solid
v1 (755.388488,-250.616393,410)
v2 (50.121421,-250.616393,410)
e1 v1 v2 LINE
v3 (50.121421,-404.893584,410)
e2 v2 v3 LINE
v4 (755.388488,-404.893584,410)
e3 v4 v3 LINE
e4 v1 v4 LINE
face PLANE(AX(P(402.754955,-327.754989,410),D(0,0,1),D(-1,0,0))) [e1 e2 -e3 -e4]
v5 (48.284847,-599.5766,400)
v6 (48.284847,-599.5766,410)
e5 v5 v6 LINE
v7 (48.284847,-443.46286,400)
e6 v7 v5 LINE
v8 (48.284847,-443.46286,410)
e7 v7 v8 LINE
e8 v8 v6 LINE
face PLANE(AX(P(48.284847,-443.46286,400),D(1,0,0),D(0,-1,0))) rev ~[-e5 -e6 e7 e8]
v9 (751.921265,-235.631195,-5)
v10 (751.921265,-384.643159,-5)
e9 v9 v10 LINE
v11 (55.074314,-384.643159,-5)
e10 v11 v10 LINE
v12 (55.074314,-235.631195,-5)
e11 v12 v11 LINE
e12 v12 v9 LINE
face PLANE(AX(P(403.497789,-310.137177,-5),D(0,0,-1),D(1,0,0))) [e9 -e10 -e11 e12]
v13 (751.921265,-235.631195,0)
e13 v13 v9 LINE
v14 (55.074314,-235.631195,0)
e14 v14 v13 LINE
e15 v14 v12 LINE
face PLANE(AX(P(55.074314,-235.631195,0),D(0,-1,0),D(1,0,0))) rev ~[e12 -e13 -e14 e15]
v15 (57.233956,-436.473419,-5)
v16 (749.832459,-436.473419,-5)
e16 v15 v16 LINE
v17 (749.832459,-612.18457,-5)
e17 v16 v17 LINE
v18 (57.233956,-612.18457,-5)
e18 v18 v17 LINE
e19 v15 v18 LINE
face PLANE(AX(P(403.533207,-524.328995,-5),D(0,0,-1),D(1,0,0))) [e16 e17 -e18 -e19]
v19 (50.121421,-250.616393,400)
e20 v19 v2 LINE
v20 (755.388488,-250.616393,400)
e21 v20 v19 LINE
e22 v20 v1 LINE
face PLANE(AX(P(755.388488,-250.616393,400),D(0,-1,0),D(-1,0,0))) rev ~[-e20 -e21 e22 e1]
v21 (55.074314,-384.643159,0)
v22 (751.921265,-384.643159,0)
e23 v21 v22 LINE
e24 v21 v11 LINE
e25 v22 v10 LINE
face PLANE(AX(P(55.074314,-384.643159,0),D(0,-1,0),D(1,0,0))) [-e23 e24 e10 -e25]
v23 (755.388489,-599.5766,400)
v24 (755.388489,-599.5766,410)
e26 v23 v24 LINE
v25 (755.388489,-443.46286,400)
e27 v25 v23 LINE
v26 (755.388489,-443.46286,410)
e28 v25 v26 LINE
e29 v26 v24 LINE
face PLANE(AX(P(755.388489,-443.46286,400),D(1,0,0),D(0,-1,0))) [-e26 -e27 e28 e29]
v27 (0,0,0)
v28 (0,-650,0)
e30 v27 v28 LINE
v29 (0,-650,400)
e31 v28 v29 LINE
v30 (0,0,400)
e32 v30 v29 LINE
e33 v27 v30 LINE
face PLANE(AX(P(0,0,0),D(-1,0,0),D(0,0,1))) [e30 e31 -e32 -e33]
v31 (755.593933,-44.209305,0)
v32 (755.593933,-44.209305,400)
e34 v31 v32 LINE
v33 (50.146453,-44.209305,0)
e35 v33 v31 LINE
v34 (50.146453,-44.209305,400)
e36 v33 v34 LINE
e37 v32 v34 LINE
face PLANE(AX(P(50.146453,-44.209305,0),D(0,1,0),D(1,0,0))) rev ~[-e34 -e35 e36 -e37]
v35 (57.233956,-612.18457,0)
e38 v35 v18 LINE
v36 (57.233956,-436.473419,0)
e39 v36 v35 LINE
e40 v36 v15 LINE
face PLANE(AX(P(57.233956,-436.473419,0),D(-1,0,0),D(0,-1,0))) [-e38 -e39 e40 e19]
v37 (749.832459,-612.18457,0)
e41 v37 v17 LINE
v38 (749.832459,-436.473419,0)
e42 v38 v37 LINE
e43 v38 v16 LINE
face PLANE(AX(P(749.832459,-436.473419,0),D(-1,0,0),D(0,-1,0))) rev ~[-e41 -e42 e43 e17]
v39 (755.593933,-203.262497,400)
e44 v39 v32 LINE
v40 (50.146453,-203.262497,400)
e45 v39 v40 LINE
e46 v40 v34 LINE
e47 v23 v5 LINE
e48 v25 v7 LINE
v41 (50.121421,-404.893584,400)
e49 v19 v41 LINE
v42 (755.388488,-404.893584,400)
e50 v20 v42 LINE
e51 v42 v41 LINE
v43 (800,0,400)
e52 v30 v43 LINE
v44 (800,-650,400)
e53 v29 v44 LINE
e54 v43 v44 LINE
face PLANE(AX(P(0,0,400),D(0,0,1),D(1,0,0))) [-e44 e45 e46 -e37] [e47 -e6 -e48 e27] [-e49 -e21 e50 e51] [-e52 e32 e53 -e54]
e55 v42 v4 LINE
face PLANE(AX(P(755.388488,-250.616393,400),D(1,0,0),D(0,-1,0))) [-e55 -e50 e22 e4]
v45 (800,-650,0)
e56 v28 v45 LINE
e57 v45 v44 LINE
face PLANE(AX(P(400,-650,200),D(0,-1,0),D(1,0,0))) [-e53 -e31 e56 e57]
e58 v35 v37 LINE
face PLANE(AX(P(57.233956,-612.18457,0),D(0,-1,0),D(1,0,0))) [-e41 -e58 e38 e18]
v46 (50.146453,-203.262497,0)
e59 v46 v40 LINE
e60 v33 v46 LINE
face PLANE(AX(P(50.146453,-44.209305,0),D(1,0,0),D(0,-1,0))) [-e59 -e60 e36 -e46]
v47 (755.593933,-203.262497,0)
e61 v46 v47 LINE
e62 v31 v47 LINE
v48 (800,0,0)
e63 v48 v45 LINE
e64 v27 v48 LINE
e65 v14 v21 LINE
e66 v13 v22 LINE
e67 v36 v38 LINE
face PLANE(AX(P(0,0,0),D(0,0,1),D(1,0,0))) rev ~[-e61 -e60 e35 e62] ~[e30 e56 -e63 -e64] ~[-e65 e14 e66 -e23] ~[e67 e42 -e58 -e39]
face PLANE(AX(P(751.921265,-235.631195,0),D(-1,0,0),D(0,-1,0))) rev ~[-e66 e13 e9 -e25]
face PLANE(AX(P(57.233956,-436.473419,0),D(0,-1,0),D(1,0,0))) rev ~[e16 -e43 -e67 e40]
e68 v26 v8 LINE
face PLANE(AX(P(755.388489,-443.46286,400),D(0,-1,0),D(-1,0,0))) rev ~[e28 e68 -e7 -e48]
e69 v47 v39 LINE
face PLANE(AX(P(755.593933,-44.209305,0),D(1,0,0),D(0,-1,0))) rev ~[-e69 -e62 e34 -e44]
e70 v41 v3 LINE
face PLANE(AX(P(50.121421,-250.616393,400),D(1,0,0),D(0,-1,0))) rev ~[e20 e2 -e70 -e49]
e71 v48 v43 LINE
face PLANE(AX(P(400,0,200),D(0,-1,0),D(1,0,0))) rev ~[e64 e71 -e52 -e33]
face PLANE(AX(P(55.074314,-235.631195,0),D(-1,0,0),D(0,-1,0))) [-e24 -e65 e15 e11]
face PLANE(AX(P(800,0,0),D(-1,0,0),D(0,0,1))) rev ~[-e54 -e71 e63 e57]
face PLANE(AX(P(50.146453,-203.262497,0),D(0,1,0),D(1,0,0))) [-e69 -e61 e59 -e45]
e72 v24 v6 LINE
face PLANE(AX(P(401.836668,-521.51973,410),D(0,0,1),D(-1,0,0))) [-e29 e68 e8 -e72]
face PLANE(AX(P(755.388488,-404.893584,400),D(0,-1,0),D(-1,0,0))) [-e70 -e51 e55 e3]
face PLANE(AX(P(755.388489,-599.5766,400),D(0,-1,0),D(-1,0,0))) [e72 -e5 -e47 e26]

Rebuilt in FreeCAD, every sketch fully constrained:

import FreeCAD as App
import Part
import Sketcher

doc = App.newDocument("Part")
params = doc.addObject("Spreadsheet::Sheet", "Params")
for row, (alias, value) in enumerate([
    ("sketch1_width", "800 mm"),
    ("sketch1_height", "400 mm"),
    ("pad1_length", "650 mm"),
    ("pad2_length", "5 mm"),
    ("pad3_length", "10 mm"),
], start=1):
    params.set(f"A{row}", alias)
    params.set(f"B{row}", "=" + value)
    params.setAlias(f"B{row}", alias)

body = doc.addObject("PartDesign::Body", "Body")

sketch1 = body.newObject("Sketcher::SketchObject", "Sketch")
sketch1.AttachmentSupport = (doc.getObject("XZ_Plane"), [""])
sketch1.MapMode = "FlatFace"
sketch1.addGeometry([
    Part.LineSegment(App.Vector(0, 400, 0), App.Vector(0, 0, 0)),
    Part.LineSegment(App.Vector(0, 0, 0), App.Vector(800, 0, 0)),
    Part.LineSegment(App.Vector(800, 0, 0), App.Vector(800, 400, 0)),
    Part.LineSegment(App.Vector(800, 400, 0), App.Vector(0, 400, 0)),
], False)
sketch1.addConstraint([
    Sketcher.Constraint("Coincident", 0, 2, 1, 1),
    Sketcher.Constraint("Coincident", 1, 2, 2, 1),
    Sketcher.Constraint("Coincident", 2, 2, 3, 1),
    Sketcher.Constraint("Coincident", 3, 2, 0, 1),
    Sketcher.Constraint("Vertical", 0),
    Sketcher.Constraint("Horizontal", 1),
    Sketcher.Constraint("Vertical", 2),
    Sketcher.Constraint("Horizontal", 3),
    Sketcher.Constraint("Coincident", 0, 2, -1, 1),
    Sketcher.Constraint("DistanceX", 1, 1, 1, 2, 800.0),
    Sketcher.Constraint("DistanceY", 0, 2, 0, 1, 400.0),
])
sketch1.setExpression("Constraints[9]", "Params.sketch1_width")
sketch1.setExpression("Constraints[10]", "Params.sketch1_height")
pad1 = body.newObject("PartDesign::Pad", "Pad")
pad1.Profile = sketch1
pad1.setExpression("Length", "Params.pad1_length")

sketch2 = body.newObject("Sketcher::SketchObject", "Sketch001")
sketch2.AttachmentSupport = (doc.getObject("XY_Plane"), [""])
sketch2.MapMode = "FlatFace"
sketch2.addGeometry([
    Part.LineSegment(App.Vector(50, -203, 0), App.Vector(50, -44, 0)),
    Part.LineSegment(App.Vector(50, -44, 0), App.Vector(756, -44, 0)),
    Part.LineSegment(App.Vector(756, -44, 0), App.Vector(756, -203, 0)),
    Part.LineSegment(App.Vector(756, -203, 0), App.Vector(50, -203, 0)),
], False)
sketch2.addConstraint([
    Sketcher.Constraint("Coincident", 0, 2, 1, 1),
    Sketcher.Constraint("Coincident", 1, 2, 2, 1),
    Sketcher.Constraint("Coincident", 2, 2, 3, 1),
    Sketcher.Constraint("Coincident", 3, 2, 0, 1),
    Sketcher.Constraint("Vertical", 0),
    Sketcher.Constraint("Horizontal", 1),
    Sketcher.Constraint("Vertical", 2),
    Sketcher.Constraint("Horizontal", 3),
    Sketcher.Constraint("DistanceX", 1, 1, 1, 2, 705.447479),
    Sketcher.Constraint("DistanceY", 0, 1, 0, 2, 159.053192),
    Sketcher.Constraint("DistanceX", -1, 1, 0, 2, 50.146453),
    Sketcher.Constraint("DistanceY", 0, 2, -1, 1, 44.209305),
])
pocket1 = body.newObject("PartDesign::Pocket", "Pocket")
pocket1.Profile = sketch2
pocket1.Type = "ThroughAll"
pocket1.Reversed = True

sketch3 = body.newObject("Sketcher::SketchObject", "Sketch002")
sketch3.AttachmentSupport = (doc.getObject("XY_Plane"), [""])
sketch3.MapMode = "FlatFace"
sketch3.addGeometry([
    Part.LineSegment(App.Vector(55, -385, 0), App.Vector(55, -236, 0)),
    Part.LineSegment(App.Vector(55, -236, 0), App.Vector(752, -236, 0)),
    Part.LineSegment(App.Vector(752, -236, 0), App.Vector(752, -385, 0)),
    Part.LineSegment(App.Vector(752, -385, 0), App.Vector(55, -385, 0)),
    Part.LineSegment(App.Vector(57, -612, 0), App.Vector(57, -436, 0)),
    Part.LineSegment(App.Vector(57, -436, 0), App.Vector(750, -436, 0)),
    Part.LineSegment(App.Vector(750, -436, 0), App.Vector(750, -612, 0)),
    Part.LineSegment(App.Vector(750, -612, 0), App.Vector(57, -612, 0)),
], False)
sketch3.addConstraint([
    Sketcher.Constraint("Coincident", 0, 2, 1, 1),
    Sketcher.Constraint("Coincident", 1, 2, 2, 1),
    Sketcher.Constraint("Coincident", 2, 2, 3, 1),
    Sketcher.Constraint("Coincident", 3, 2, 0, 1),
    Sketcher.Constraint("Coincident", 4, 2, 5, 1),
    Sketcher.Constraint("Coincident", 5, 2, 6, 1),
    Sketcher.Constraint("Coincident", 6, 2, 7, 1),
    Sketcher.Constraint("Coincident", 7, 2, 4, 1),
    Sketcher.Constraint("Vertical", 0),
    Sketcher.Constraint("Horizontal", 1),
    Sketcher.Constraint("Vertical", 2),
    Sketcher.Constraint("Horizontal", 3),
    Sketcher.Constraint("Vertical", 4),
    Sketcher.Constraint("Horizontal", 5),
    Sketcher.Constraint("Vertical", 6),
    Sketcher.Constraint("Horizontal", 7),
    Sketcher.Constraint("DistanceX", 1, 1, 1, 2, 696.846951),
    Sketcher.Constraint("DistanceY", 4, 1, 4, 2, 175.711151),
    Sketcher.Constraint("DistanceX", 5, 1, 5, 2, 692.598503),
    Sketcher.Constraint("DistanceY", 0, 1, 0, 2, 149.011963),
    Sketcher.Constraint("DistanceY", 2, 2, -1, 1, 384.643159),
    Sketcher.Constraint("DistanceY", 4, 2, -1, 1, 436.473419),
    Sketcher.Constraint("DistanceX", -1, 1, 5, 2, 749.832459),
    Sketcher.Constraint("DistanceX", 3, 2, 4, 2, 2.159642),
])
pad2 = body.newObject("PartDesign::Pad", "Pad001")
pad2.Profile = sketch3
pad2.setExpression("Length", "Params.pad2_length")
pad2.Reversed = True

sketch4 = body.newObject("Sketcher::SketchObject", "Sketch003")
sketch4.AttachmentSupport = (doc.getObject("XY_Plane"), [""])
sketch4.MapMode = "FlatFace"
sketch4.AttachmentOffset = App.Placement(App.Vector(0, 0, 400), App.Rotation())
sketch4.addGeometry([
    Part.LineSegment(App.Vector(755, -405, 0), App.Vector(755, -251, 0)),
    Part.LineSegment(App.Vector(755, -251, 0), App.Vector(50, -251, 0)),
    Part.LineSegment(App.Vector(50, -251, 0), App.Vector(50, -405, 0)),
    Part.LineSegment(App.Vector(50, -405, 0), App.Vector(755, -405, 0)),
    Part.LineSegment(App.Vector(755, -600, 0), App.Vector(755, -443, 0)),
    Part.LineSegment(App.Vector(755, -443, 0), App.Vector(48, -443, 0)),
    Part.LineSegment(App.Vector(48, -443, 0), App.Vector(48, -600, 0)),
    Part.LineSegment(App.Vector(48, -600, 0), App.Vector(755, -600, 0)),
], False)
sketch4.addConstraint([
    Sketcher.Constraint("Coincident", 0, 2, 1, 1),
    Sketcher.Constraint("Coincident", 1, 2, 2, 1),
    Sketcher.Constraint("Coincident", 2, 2, 3, 1),
    Sketcher.Constraint("Coincident", 3, 2, 0, 1),
    Sketcher.Constraint("Coincident", 4, 2, 5, 1),
    Sketcher.Constraint("Coincident", 5, 2, 6, 1),
    Sketcher.Constraint("Coincident", 6, 2, 7, 1),
    Sketcher.Constraint("Coincident", 7, 2, 4, 1),
    Sketcher.Constraint("Vertical", 0),
    Sketcher.Constraint("Horizontal", 1),
    Sketcher.Constraint("Vertical", 2),
    Sketcher.Constraint("Horizontal", 3),
    Sketcher.Constraint("Vertical", 4),
    Sketcher.Constraint("Horizontal", 5),
    Sketcher.Constraint("Vertical", 6),
    Sketcher.Constraint("Horizontal", 7),
    Sketcher.Constraint("Vertical", 3, 2, 4, 2),
    Sketcher.Constraint("DistanceX", 5, 2, 5, 1, 707.103642),
    Sketcher.Constraint("DistanceY", 0, 1, 0, 2, 154.277191),
    Sketcher.Constraint("DistanceY", 4, 1, 4, 2, 156.113739),
    Sketcher.Constraint("DistanceY", 6, 2, -1, 1, 599.5766),
    Sketcher.Constraint("DistanceX", 1, 2, 1, 1, 705.267067),
    Sketcher.Constraint("DistanceX", -1, 1, 0, 2, 755.388488),
    Sketcher.Constraint("DistanceY", 0, 2, -1, 1, 250.616393),
])
pad3 = body.newObject("PartDesign::Pad", "Pad002")
pad3.Profile = sketch4
pad3.setExpression("Length", "Params.pad3_length")

doc.recompute()
